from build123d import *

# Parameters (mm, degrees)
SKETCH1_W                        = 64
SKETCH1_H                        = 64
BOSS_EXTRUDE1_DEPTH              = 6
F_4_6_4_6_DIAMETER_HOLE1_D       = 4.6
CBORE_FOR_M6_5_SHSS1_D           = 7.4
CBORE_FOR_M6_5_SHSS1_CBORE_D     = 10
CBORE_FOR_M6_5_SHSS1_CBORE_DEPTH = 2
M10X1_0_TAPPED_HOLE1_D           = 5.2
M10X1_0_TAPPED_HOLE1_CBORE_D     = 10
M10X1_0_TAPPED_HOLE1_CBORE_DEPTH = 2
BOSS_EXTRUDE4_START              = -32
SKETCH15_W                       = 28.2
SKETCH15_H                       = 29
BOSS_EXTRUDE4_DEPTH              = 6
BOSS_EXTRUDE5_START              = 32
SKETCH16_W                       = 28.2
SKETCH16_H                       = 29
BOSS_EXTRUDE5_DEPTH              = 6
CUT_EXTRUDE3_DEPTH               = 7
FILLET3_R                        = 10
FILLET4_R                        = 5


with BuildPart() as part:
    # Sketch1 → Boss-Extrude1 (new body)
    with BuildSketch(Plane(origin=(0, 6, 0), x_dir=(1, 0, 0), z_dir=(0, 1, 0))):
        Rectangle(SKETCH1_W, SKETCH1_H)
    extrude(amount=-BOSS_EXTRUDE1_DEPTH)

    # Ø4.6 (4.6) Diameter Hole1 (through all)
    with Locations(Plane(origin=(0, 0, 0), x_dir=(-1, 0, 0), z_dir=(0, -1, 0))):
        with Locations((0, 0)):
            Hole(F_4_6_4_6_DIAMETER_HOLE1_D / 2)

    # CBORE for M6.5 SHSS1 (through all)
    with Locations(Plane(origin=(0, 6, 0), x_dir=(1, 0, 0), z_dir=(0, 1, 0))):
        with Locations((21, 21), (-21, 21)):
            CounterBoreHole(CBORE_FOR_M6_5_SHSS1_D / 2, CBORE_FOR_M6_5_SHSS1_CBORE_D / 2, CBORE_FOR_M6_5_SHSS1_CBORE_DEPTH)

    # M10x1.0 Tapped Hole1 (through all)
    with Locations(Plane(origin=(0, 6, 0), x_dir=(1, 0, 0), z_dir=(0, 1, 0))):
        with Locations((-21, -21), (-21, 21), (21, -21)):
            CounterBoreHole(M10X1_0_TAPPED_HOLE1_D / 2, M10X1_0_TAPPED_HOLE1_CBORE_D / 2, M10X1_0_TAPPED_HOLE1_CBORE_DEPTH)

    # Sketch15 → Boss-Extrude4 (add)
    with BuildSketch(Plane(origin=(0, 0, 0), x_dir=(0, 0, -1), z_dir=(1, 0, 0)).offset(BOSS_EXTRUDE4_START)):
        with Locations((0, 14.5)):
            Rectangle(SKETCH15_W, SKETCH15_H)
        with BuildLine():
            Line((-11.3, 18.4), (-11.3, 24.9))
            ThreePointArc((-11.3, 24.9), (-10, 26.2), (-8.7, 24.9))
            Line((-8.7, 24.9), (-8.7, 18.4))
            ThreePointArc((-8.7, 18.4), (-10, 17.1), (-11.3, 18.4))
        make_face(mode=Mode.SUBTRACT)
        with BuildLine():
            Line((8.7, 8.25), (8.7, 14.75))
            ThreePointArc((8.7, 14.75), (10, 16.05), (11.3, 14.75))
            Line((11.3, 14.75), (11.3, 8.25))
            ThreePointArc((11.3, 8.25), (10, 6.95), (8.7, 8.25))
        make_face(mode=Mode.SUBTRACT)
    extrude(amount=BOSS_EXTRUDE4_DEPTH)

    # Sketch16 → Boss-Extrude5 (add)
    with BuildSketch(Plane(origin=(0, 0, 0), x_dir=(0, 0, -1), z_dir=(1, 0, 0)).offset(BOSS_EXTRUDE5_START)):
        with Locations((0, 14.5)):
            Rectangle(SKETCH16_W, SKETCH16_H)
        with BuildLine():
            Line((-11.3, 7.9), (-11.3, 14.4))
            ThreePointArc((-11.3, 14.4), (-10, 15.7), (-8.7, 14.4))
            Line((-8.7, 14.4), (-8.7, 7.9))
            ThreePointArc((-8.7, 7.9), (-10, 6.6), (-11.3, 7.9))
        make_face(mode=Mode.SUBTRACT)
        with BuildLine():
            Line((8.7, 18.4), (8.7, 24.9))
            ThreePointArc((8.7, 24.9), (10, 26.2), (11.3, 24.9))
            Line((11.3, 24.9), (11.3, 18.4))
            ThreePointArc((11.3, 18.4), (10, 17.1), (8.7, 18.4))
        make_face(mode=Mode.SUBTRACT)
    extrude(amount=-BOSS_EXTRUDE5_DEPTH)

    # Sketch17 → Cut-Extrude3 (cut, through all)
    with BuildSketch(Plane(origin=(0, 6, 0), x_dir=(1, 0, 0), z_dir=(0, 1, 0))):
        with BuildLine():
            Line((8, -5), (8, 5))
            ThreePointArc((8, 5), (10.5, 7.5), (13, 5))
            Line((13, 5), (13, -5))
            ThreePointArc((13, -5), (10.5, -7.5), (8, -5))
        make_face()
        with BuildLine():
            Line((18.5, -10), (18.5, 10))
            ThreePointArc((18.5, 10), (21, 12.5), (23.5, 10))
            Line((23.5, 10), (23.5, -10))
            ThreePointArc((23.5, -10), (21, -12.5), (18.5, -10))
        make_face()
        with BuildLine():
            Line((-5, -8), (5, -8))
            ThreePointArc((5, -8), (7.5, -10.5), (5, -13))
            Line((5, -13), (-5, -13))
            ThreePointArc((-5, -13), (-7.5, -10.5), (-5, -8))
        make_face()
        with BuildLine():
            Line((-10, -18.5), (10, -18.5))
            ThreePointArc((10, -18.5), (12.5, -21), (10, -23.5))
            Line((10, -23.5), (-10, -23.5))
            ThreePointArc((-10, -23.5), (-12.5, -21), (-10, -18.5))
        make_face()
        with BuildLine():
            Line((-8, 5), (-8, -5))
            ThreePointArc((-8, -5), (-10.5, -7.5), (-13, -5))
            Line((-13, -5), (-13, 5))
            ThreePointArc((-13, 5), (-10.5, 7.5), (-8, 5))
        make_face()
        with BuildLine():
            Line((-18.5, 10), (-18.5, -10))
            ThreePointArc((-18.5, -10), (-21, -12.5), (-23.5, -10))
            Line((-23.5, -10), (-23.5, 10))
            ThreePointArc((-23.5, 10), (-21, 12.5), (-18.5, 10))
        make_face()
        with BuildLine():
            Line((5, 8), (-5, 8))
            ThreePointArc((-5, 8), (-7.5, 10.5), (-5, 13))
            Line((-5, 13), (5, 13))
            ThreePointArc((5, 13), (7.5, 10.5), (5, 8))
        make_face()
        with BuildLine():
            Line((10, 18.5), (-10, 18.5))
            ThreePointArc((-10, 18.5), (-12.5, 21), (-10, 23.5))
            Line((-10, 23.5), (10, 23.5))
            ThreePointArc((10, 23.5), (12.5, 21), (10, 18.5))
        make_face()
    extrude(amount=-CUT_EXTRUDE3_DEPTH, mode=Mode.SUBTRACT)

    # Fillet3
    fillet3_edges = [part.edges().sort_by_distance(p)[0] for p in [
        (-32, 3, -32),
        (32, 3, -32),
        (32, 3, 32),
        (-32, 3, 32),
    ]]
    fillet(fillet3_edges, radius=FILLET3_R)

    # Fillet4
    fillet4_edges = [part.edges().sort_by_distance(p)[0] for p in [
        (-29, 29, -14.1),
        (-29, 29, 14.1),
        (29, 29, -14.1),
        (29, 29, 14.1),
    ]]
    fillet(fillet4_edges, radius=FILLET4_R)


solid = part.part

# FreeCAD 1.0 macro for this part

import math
import FreeCAD as App
import Part
import Sketcher
Q = App.Units.Quantity


def edges_at(feature, points):
    """Names of the edges that pass closest to the given points."""
    edges = feature.Shape.Edges
    near = lambda p: min(range(len(edges)), key=lambda i: edges[i].distToShape(Part.Vertex(*p))[0])
    return sorted({f"Edge{near(p) + 1}" for p in points})


def add_polygon(sketch, points):
    """Adds a closed chain of lines whose ends are joined by coincident constraints."""
    first, n = sketch.GeometryCount, len(points)
    for a, b in zip(points, points[1:] + points[:1]):
        sketch.addGeometry(Part.LineSegment(App.Vector(*a, 0), App.Vector(*b, 0)), False)
    for i in range(n):
        sketch.addConstraint(Sketcher.Constraint("Coincident", first + i, 2, first + (i + 1) % n, 1))

doc = App.newDocument("Part")
params = doc.addObject("Spreadsheet::Sheet", "Params")
for row, (alias, value) in enumerate([
    ("sketch1_width", "64 mm"),
    ("pad1_length", "6 mm"),
    ("sketch2_diameter", "4.6 mm"),
    ("hole_diameter", "4.6 mm"),
    ("sketch3_diameter", "7.4 mm"),
    ("hole2_diameter", "7.4 mm"),
    ("hole2_cbore_diameter", "10 mm"),
    ("hole2_cbore_depth", "2 mm"),
    ("sketch4_diameter", "5.2 mm"),
    ("hole3_diameter", "5.2 mm"),
    ("hole3_cbore_diameter", "10 mm"),
    ("hole3_cbore_depth", "2 mm"),
    ("sketch5_radius", "1.3 mm"),
    ("sketch5_width", "29 mm"),
    ("sketch5_width2", "6.5 mm"),
    ("sketch5_height", "28.2 mm"),
    ("pad2_length", "6 mm"),
    ("sketch6_radius", "1.3 mm"),
    ("sketch6_width", "29 mm"),
    ("sketch6_width2", "6.5 mm"),
    ("sketch6_height", "28.2 mm"),
    ("pad3_length", "6 mm"),
    ("sketch7_radius", "2.5 mm"),
    ("sketch7_width", "10 mm"),
    ("sketch7_width2", "20 mm"),
    ("fillet_radius", "10 mm"),
    ("fillet2_radius", "5 mm"),
], start=1):
    params.set(f"A{row}", alias)
    params.set(f"B{row}", "=" + value)
    params.setAlias(f"B{row}", alias)

body = doc.addObject("PartDesign::Body", "Body")

# Sketch on XZ plane
sketch1 = doc.addObject("Sketcher::SketchObject", "Sketch")
body.addObject(sketch1)
sketch1.AttachmentSupport = (doc.XZ_Plane, [""])
sketch1.MapMode = "FlatFace"
sketch1.AttachmentOffset = App.Placement(App.Vector(0, 0, -6), App.Rotation())
add_polygon(sketch1, [(-32, -32), (-32, 32), (32, 32), (32, -32)])  # lines 0-3
sketch1.addConstraint(Sketcher.Constraint("Vertical", 0))
sketch1.addConstraint(Sketcher.Constraint("Horizontal", 1))
sketch1.addConstraint(Sketcher.Constraint("Vertical", 2))
sketch1.addConstraint(Sketcher.Constraint("Horizontal", 3))
sketch1.addConstraint(Sketcher.Constraint("Symmetric", 0, 2, 2, 2, -1, 1))
sketch1.addConstraint(Sketcher.Constraint("Equal", 3, 0))
sketch1.addConstraint(Sketcher.Constraint("DistanceX", 1, 1, 1, 2, Q("64 mm")))
sketch1.setExpression("Constraints[10]", "Params.sketch1_width")
pad1 = doc.addObject("PartDesign::Pad", "Pad")
body.addObject(pad1)
pad1.Profile = sketch1
pad1.setExpression("Length", "Params.pad1_length")

# Sketch on XZ plane
sketch2 = doc.addObject("Sketcher::SketchObject", "Sketch001")
body.addObject(sketch2)
sketch2.AttachmentSupport = (doc.XZ_Plane, [""])
sketch2.MapMode = "FlatFace"
sketch2.addGeometry(Part.Circle(App.Vector(0, 0, 0), App.Vector(0, 0, 1), 2.3), False)
sketch2.addConstraint(Sketcher.Constraint("Coincident", 0, 3, -1, 1))
sketch2.addConstraint(Sketcher.Constraint("Diameter", 0, Q("4.6 mm")))
sketch2.setExpression("Constraints[1]", "Params.sketch2_diameter")
doc.recompute()
hole = doc.addObject("PartDesign::Hole", "Hole")
body.addObject(hole)
hole.Profile = sketch2
hole.ThreadType = "None"
hole.setExpression("Diameter", "Params.hole_diameter")
hole.DepthType = "ThroughAll"

# Sketch on XZ plane
sketch3 = doc.addObject("Sketcher::SketchObject", "Sketch002")
body.addObject(sketch3)
sketch3.AttachmentSupport = (doc.XZ_Plane, [""])
sketch3.MapMode = "FlatFace"
sketch3.AttachmentOffset = App.Placement(App.Vector(0, 0, -6), App.Rotation())
sketch3.addGeometry(Part.Circle(App.Vector(21, -21, 0), App.Vector(0, 0, 1), 3.7), False)
sketch3.addGeometry(Part.Circle(App.Vector(-21, -21, 0), App.Vector(0, 0, 1), 3.7), False)
sketch3.addConstraint(Sketcher.Constraint("Equal", 0, 1))
sketch3.addConstraint(Sketcher.Constraint("Symmetric", 0, 3, 1, 3, -2))
sketch3.addConstraint(Sketcher.Constraint("Diameter", 0, Q("7.4 mm")))
sketch3.addConstraint(Sketcher.Constraint("DistanceX", -1, 1, 0, 3, Q("21 mm")))
sketch3.addConstraint(Sketcher.Constraint("DistanceY", 0, 3, -1, 1, Q("21 mm")))
sketch3.setExpression("Constraints[2]", "Params.sketch3_diameter")
doc.recompute()
hole2 = doc.addObject("PartDesign::Hole", "Hole001")
body.addObject(hole2)
hole2.Profile = sketch3
hole2.ThreadType = "None"
hole2.setExpression("Diameter", "Params.hole2_diameter")
hole2.DepthType = "ThroughAll"
hole2.HoleCutType = "Counterbore"
hole2.setExpression("HoleCutDiameter", "Params.hole2_cbore_diameter")
hole2.setExpression("HoleCutDepth", "Params.hole2_cbore_depth")
hole2.Reversed = True

# Sketch on XZ plane
sketch4 = doc.addObject("Sketcher::SketchObject", "Sketch003")
body.addObject(sketch4)
sketch4.AttachmentSupport = (doc.XZ_Plane, [""])
sketch4.MapMode = "FlatFace"
sketch4.AttachmentOffset = App.Placement(App.Vector(0, 0, -6), App.Rotation())
sketch4.addGeometry(Part.Circle(App.Vector(-21, 21, 0), App.Vector(0, 0, 1), 2.6), False)
sketch4.addGeometry(Part.Circle(App.Vector(-21, -21, 0), App.Vector(0, 0, 1), 2.6), False)
sketch4.addGeometry(Part.Circle(App.Vector(21, 21, 0), App.Vector(0, 0, 1), 2.6), False)
sketch4.addConstraint(Sketcher.Constraint("Equal", 0, 1))
sketch4.addConstraint(Sketcher.Constraint("Equal", 1, 2))
sketch4.addConstraint(Sketcher.Constraint("Symmetric", 1, 3, 2, 3, -1, 1))
sketch4.addConstraint(Sketcher.Constraint("Symmetric", 0, 3, 2, 3, -2))
sketch4.addConstraint(Sketcher.Constraint("Diameter", 0, Q("5.2 mm")))
sketch4.addConstraint(Sketcher.Constraint("DistanceX", 0, 3, -1, 1, Q("21 mm")))
sketch4.addConstraint(Sketcher.Constraint("DistanceY", -1, 1, 0, 3, Q("21 mm")))
sketch4.setExpression("Constraints[4]", "Params.sketch4_diameter")
doc.recompute()
hole3 = doc.addObject("PartDesign::Hole", "Hole002")
body.addObject(hole3)
hole3.Profile = sketch4
hole3.ThreadType = "None"
hole3.setExpression("Diameter", "Params.hole3_diameter")
hole3.DepthType = "ThroughAll"
hole3.HoleCutType = "Counterbore"
hole3.setExpression("HoleCutDiameter", "Params.hole3_cbore_diameter")
hole3.setExpression("HoleCutDepth", "Params.hole3_cbore_depth")
hole3.Reversed = True

# Sketch on YZ plane
sketch5 = doc.addObject("Sketcher::SketchObject", "Sketch004")
body.addObject(sketch5)
sketch5.AttachmentSupport = (doc.YZ_Plane, [""])
sketch5.MapMode = "FlatFace"
sketch5.AttachmentOffset = App.Placement(App.Vector(0, 0, -32), App.Rotation())
add_polygon(sketch5, [(29, 14.1), (0, 14.1), (0, -14.1), (29, -14.1)])  # lines 0-3
sketch5.addGeometry(Part.ArcOfCircle(Part.Circle(App.Vector(8.2, -10, 0), App.Vector(0, 0, 1), 1.3), math.radians(90), math.radians(270)), False)  # 4
sketch5.addGeometry(Part.LineSegment(App.Vector(8.2, -8.7, 0), App.Vector(14.8, -8.7, 0)), False)  # 5
sketch5.addGeometry(Part.ArcOfCircle(Part.Circle(App.Vector(14.8, -10, 0), App.Vector(0, 0, 1), 1.3), math.radians(-90), math.radians(90)), False)  # 6
sketch5.addGeometry(Part.LineSegment(App.Vector(14.8, -11.3, 0), App.Vector(8.2, -11.3, 0)), False)  # 7
sketch5.addGeometry(Part.ArcOfCircle(Part.Circle(App.Vector(18.4, 10, 0), App.Vector(0, 0, 1), 1.3), math.radians(90), math.radians(270)), False)  # 8
sketch5.addGeometry(Part.LineSegment(App.Vector(18.4, 11.3, 0), App.Vector(24.9, 11.3, 0)), False)  # 9
sketch5.addGeometry(Part.ArcOfCircle(Part.Circle(App.Vector(24.9, 10, 0), App.Vector(0, 0, 1), 1.3), math.radians(-90), math.radians(90)), False)  # 10
sketch5.addGeometry(Part.LineSegment(App.Vector(24.9, 8.7, 0), App.Vector(18.4, 8.7, 0)), False)  # 11
sketch5.addConstraint(Sketcher.Constraint("Tangent", 4, 1, 5, 1))
sketch5.addConstraint(Sketcher.Constraint("Tangent", 5, 2, 6, 2))
sketch5.addConstraint(Sketcher.Constraint("Tangent", 6, 1, 7, 1))
sketch5.addConstraint(Sketcher.Constraint("Tangent", 7, 2, 4, 2))
sketch5.addConstraint(Sketcher.Constraint("Tangent", 8, 1, 9, 1))
sketch5.addConstraint(Sketcher.Constraint("Tangent", 9, 2, 10, 2))
sketch5.addConstraint(Sketcher.Constraint("Tangent", 10, 1, 11, 1))
sketch5.addConstraint(Sketcher.Constraint("Tangent", 11, 2, 8, 2))
sketch5.addConstraint(Sketcher.Constraint("Horizontal", 0))
sketch5.addConstraint(Sketcher.Constraint("Vertical", 1))
sketch5.addConstraint(Sketcher.Constraint("Horizontal", 2))
sketch5.addConstraint(Sketcher.Constraint("Vertical", 3))
sketch5.addConstraint(Sketcher.Constraint("Horizontal", 5))
sketch5.addConstraint(Sketcher.Constraint("Horizontal", 7))
sketch5.addConstraint(Sketcher.Constraint("Horizontal", 9))
sketch5.addConstraint(Sketcher.Constraint("Horizontal", 11))
sketch5.addConstraint(Sketcher.Constraint("Equal", 6, 8))
sketch5.addConstraint(Sketcher.Constraint("Symmetric", 0, 2, 1, 2, -1, 1))
sketch5.addConstraint(Sketcher.Constraint("Equal", 7, 9))
sketch5.addConstraint(Sketcher.Constraint("Radius", 4, Q("1.3 mm")))
sketch5.addConstraint(Sketcher.Constraint("DistanceX", 0, 2, 0, 1, Q("29 mm")))
sketch5.addConstraint(Sketcher.Constraint("DistanceX", 5, 1, 5, 2, Q("6.5 mm")))
sketch5.addConstraint(Sketcher.Constraint("DistanceY", 1, 2, 1, 1, Q("28.2 mm")))
sketch5.addConstraint(Sketcher.Constraint("DistanceY", 4, 3, -1, 1, Q("10 mm")))
sketch5.addConstraint(Sketcher.Constraint("DistanceY", -1, 1, 8, 3, Q("10 mm")))
sketch5.addConstraint(Sketcher.Constraint("DistanceX", -1, 1, 8, 3, Q("18.4 mm")))
sketch5.addConstraint(Sketcher.Constraint("DistanceX", -1, 1, 4, 3, Q("8.25 mm")))
sketch5.setExpression("Constraints[23]", "Params.sketch5_radius")
sketch5.setExpression("Constraints[24]", "Params.sketch5_width")
sketch5.setExpression("Constraints[25]", "Params.sketch5_width2")
sketch5.setExpression("Constraints[26]", "Params.sketch5_height")
pad2 = doc.addObject("PartDesign::Pad", "Pad001")
body.addObject(pad2)
pad2.Profile = sketch5
pad2.setExpression("Length", "Params.pad2_length")

# Sketch on YZ plane
sketch6 = doc.addObject("Sketcher::SketchObject", "Sketch005")
body.addObject(sketch6)
sketch6.AttachmentSupport = (doc.YZ_Plane, [""])
sketch6.MapMode = "FlatFace"
sketch6.AttachmentOffset = App.Placement(App.Vector(0, 0, 32), App.Rotation())
add_polygon(sketch6, [(29, 14.1), (0, 14.1), (0, -14.1), (29, -14.1)])  # lines 0-3
sketch6.addGeometry(Part.ArcOfCircle(Part.Circle(App.Vector(7.9, 10, 0), App.Vector(0, 0, 1), 1.3), math.radians(90), math.radians(270)), False)  # 4
sketch6.addGeometry(Part.LineSegment(App.Vector(7.9, 11.3, 0), App.Vector(14.4, 11.3, 0)), False)  # 5
sketch6.addGeometry(Part.ArcOfCircle(Part.Circle(App.Vector(14.4, 10, 0), App.Vector(0, 0, 1), 1.3), math.radians(-90), math.radians(90)), False)  # 6
sketch6.addGeometry(Part.LineSegment(App.Vector(14.4, 8.7, 0), App.Vector(7.9, 8.7, 0)), False)  # 7
sketch6.addGeometry(Part.ArcOfCircle(Part.Circle(App.Vector(18.4, -10, 0), App.Vector(0, 0, 1), 1.3), math.radians(90), math.radians(270)), False)  # 8
sketch6.addGeometry(Part.LineSegment(App.Vector(18.4, -8.7, 0), App.Vector(24.9, -8.7, 0)), False)  # 9
sketch6.addGeometry(Part.ArcOfCircle(Part.Circle(App.Vector(24.9, -10, 0), App.Vector(0, 0, 1), 1.3), math.radians(-90), math.radians(90)), False)  # 10
sketch6.addGeometry(Part.LineSegment(App.Vector(24.9, -11.3, 0), App.Vector(18.4, -11.3, 0)), False)  # 11
sketch6.addConstraint(Sketcher.Constraint("Tangent", 4, 1, 5, 1))
sketch6.addConstraint(Sketcher.Constraint("Tangent", 5, 2, 6, 2))
sketch6.addConstraint(Sketcher.Constraint("Tangent", 6, 1, 7, 1))
sketch6.addConstraint(Sketcher.Constraint("Tangent", 7, 2, 4, 2))
sketch6.addConstraint(Sketcher.Constraint("Tangent", 8, 1, 9, 1))
sketch6.addConstraint(Sketcher.Constraint("Tangent", 9, 2, 10, 2))
sketch6.addConstraint(Sketcher.Constraint("Tangent", 10, 1, 11, 1))
sketch6.addConstraint(Sketcher.Constraint("Tangent", 11, 2, 8, 2))
sketch6.addConstraint(Sketcher.Constraint("Horizontal", 0))
sketch6.addConstraint(Sketcher.Constraint("Vertical", 1))
sketch6.addConstraint(Sketcher.Constraint("Horizontal", 2))
sketch6.addConstraint(Sketcher.Constraint("Vertical", 3))
sketch6.addConstraint(Sketcher.Constraint("Horizontal", 5))
sketch6.addConstraint(Sketcher.Constraint("Horizontal", 7))
sketch6.addConstraint(Sketcher.Constraint("Horizontal", 9))
sketch6.addConstraint(Sketcher.Constraint("Horizontal", 11))
sketch6.addConstraint(Sketcher.Constraint("Equal", 6, 8))
sketch6.addConstraint(Sketcher.Constraint("Symmetric", 0, 2, 1, 2, -1, 1))
sketch6.addConstraint(Sketcher.Constraint("Equal", 7, 9))
sketch6.addConstraint(Sketcher.Constraint("Radius", 4, Q("1.3 mm")))
sketch6.addConstraint(Sketcher.Constraint("DistanceX", 0, 2, 0, 1, Q("29 mm")))
sketch6.addConstraint(Sketcher.Constraint("DistanceX", 5, 1, 5, 2, Q("6.5 mm")))
sketch6.addConstraint(Sketcher.Constraint("DistanceY", 1, 2, 1, 1, Q("28.2 mm")))
sketch6.addConstraint(Sketcher.Constraint("DistanceY", -1, 1, 4, 3, Q("10 mm")))
sketch6.addConstraint(Sketcher.Constraint("DistanceY", 8, 3, -1, 1, Q("10 mm")))
sketch6.addConstraint(Sketcher.Constraint("DistanceX", 6, 3, 8, 3, Q("4 mm")))
sketch6.addConstraint(Sketcher.Constraint("DistanceX", -1, 1, 4, 3, Q("7.9 mm")))
sketch6.setExpression("Constraints[23]", "Params.sketch6_radius")
sketch6.setExpression("Constraints[24]", "Params.sketch6_width")
sketch6.setExpression("Constraints[25]", "Params.sketch6_width2")
sketch6.setExpression("Constraints[26]", "Params.sketch6_height")
pad3 = doc.addObject("PartDesign::Pad", "Pad002")
body.addObject(pad3)
pad3.Profile = sketch6
pad3.setExpression("Length", "Params.pad3_length")
pad3.Reversed = True

# Sketch on XZ plane
sketch7 = doc.addObject("Sketcher::SketchObject", "Sketch006")
body.addObject(sketch7)
sketch7.AttachmentSupport = (doc.XZ_Plane, [""])
sketch7.MapMode = "FlatFace"
sketch7.AttachmentOffset = App.Placement(App.Vector(0, 0, -6), App.Rotation())
sketch7.addGeometry(Part.LineSegment(App.Vector(8, -5, 0), App.Vector(8, 5, 0)), False)
sketch7.addGeometry(Part.ArcOfCircle(Part.Circle(App.Vector(10.5, 5, 0), App.Vector(0, 0, 1), 2.5), math.radians(0), math.radians(180)), False)
sketch7.addGeometry(Part.LineSegment(App.Vector(13, 5, 0), App.Vector(13, -5, 0)), False)
sketch7.addGeometry(Part.ArcOfCircle(Part.Circle(App.Vector(10.5, -5, 0), App.Vector(0, 0, 1), 2.5), math.radians(180), math.radians(360)), False)
sketch7.addGeometry(Part.LineSegment(App.Vector(18.5, -10, 0), App.Vector(18.5, 10, 0)), False)
sketch7.addGeometry(Part.ArcOfCircle(Part.Circle(App.Vector(21, 10, 0), App.Vector(0, 0, 1), 2.5), math.radians(0), math.radians(180)), False)
sketch7.addGeometry(Part.LineSegment(App.Vector(23.5, 10, 0), App.Vector(23.5, -10, 0)), False)
sketch7.addGeometry(Part.ArcOfCircle(Part.Circle(App.Vector(21, -10, 0), App.Vector(0, 0, 1), 2.5), math.radians(180), math.radians(360)), False)
sketch7.addGeometry(Part.LineSegment(App.Vector(5, 8, 0), App.Vector(-5, 8, 0)), False)
sketch7.addGeometry(Part.ArcOfCircle(Part.Circle(App.Vector(-5, 10.5, 0), App.Vector(0, 0, 1), 2.5), math.radians(90), math.radians(270)), False)
sketch7.addGeometry(Part.LineSegment(App.Vector(-5, 13, 0), App.Vector(5, 13, 0)), False)
sketch7.addGeometry(Part.ArcOfCircle(Part.Circle(App.Vector(5, 10.5, 0), App.Vector(0, 0, 1), 2.5), math.radians(-90), math.radians(90)), False)
sketch7.addGeometry(Part.LineSegment(App.Vector(10, 18.5, 0), App.Vector(-10, 18.5, 0)), False)
sketch7.addGeometry(Part.ArcOfCircle(Part.Circle(App.Vector(-10, 21, 0), App.Vector(0, 0, 1), 2.5), math.radians(90), math.radians(270)), False)
sketch7.addGeometry(Part.LineSegment(App.Vector(-10, 23.5, 0), App.Vector(10, 23.5, 0)), False)
sketch7.addGeometry(Part.ArcOfCircle(Part.Circle(App.Vector(10, 21, 0), App.Vector(0, 0, 1), 2.5), math.radians(-90), math.radians(90)), False)
sketch7.addGeometry(Part.LineSegment(App.Vector(-8, 5, 0), App.Vector(-8, -5, 0)), False)
sketch7.addGeometry(Part.ArcOfCircle(Part.Circle(App.Vector(-10.5, -5, 0), App.Vector(0, 0, 1), 2.5), math.radians(180), math.radians(360)), False)
sketch7.addGeometry(Part.LineSegment(App.Vector(-13, -5, 0), App.Vector(-13, 5, 0)), False)
sketch7.addGeometry(Part.ArcOfCircle(Part.Circle(App.Vector(-10.5, 5, 0), App.Vector(0, 0, 1), 2.5), math.radians(0), math.radians(180)), False)
sketch7.addGeometry(Part.LineSegment(App.Vector(-18.5, 10, 0), App.Vector(-18.5, -10, 0)), False)
sketch7.addGeometry(Part.ArcOfCircle(Part.Circle(App.Vector(-21, -10, 0), App.Vector(0, 0, 1), 2.5), math.radians(180), math.radians(360)), False)
sketch7.addGeometry(Part.LineSegment(App.Vector(-23.5, -10, 0), App.Vector(-23.5, 10, 0)), False)
sketch7.addGeometry(Part.ArcOfCircle(Part.Circle(App.Vector(-21, 10, 0), App.Vector(0, 0, 1), 2.5), math.radians(0), math.radians(180)), False)
sketch7.addGeometry(Part.LineSegment(App.Vector(-5, -8, 0), App.Vector(5, -8, 0)), False)
sketch7.addGeometry(Part.ArcOfCircle(Part.Circle(App.Vector(5, -10.5, 0), App.Vector(0, 0, 1), 2.5), math.radians(-90), math.radians(90)), False)
sketch7.addGeometry(Part.LineSegment(App.Vector(5, -13, 0), App.Vector(-5, -13, 0)), False)
sketch7.addGeometry(Part.ArcOfCircle(Part.Circle(App.Vector(-5, -10.5, 0), App.Vector(0, 0, 1), 2.5), math.radians(90), math.radians(270)), False)
sketch7.addGeometry(Part.LineSegment(App.Vector(-10, -18.5, 0), App.Vector(10, -18.5, 0)), False)
sketch7.addGeometry(Part.ArcOfCircle(Part.Circle(App.Vector(10, -21, 0), App.Vector(0, 0, 1), 2.5), math.radians(-90), math.radians(90)), False)
sketch7.addGeometry(Part.LineSegment(App.Vector(10, -23.5, 0), App.Vector(-10, -23.5, 0)), False)
sketch7.addGeometry(Part.ArcOfCircle(Part.Circle(App.Vector(-10, -21, 0), App.Vector(0, 0, 1), 2.5), math.radians(90), math.radians(270)), False)
sketch7.addConstraint(Sketcher.Constraint("Tangent", 0, 2, 1, 2))
sketch7.addConstraint(Sketcher.Constraint("Tangent", 1, 1, 2, 1))
sketch7.addConstraint(Sketcher.Constraint("Tangent", 2, 2, 3, 2))
sketch7.addConstraint(Sketcher.Constraint("Tangent", 3, 1, 0, 1))
sketch7.addConstraint(Sketcher.Constraint("Tangent", 4, 2, 5, 2))
sketch7.addConstraint(Sketcher.Constraint("Tangent", 5, 1, 6, 1))
sketch7.addConstraint(Sketcher.Constraint("Tangent", 6, 2, 7, 2))
sketch7.addConstraint(Sketcher.Constraint("Tangent", 7, 1, 4, 1))
sketch7.addConstraint(Sketcher.Constraint("Tangent", 8, 2, 9, 2))
sketch7.addConstraint(Sketcher.Constraint("Tangent", 9, 1, 10, 1))
sketch7.addConstraint(Sketcher.Constraint("Tangent", 10, 2, 11, 2))
sketch7.addConstraint(Sketcher.Constraint("Tangent", 11, 1, 8, 1))
sketch7.addConstraint(Sketcher.Constraint("Tangent", 12, 2, 13, 2))
sketch7.addConstraint(Sketcher.Constraint("Tangent", 13, 1, 14, 1))
sketch7.addConstraint(Sketcher.Constraint("Tangent", 14, 2, 15, 2))
sketch7.addConstraint(Sketcher.Constraint("Tangent", 15, 1, 12, 1))
sketch7.addConstraint(Sketcher.Constraint("Tangent", 16, 2, 17, 2))
sketch7.addConstraint(Sketcher.Constraint("Tangent", 17, 1, 18, 1))
sketch7.addConstraint(Sketcher.Constraint("Tangent", 18, 2, 19, 2))
sketch7.addConstraint(Sketcher.Constraint("Tangent", 19, 1, 16, 1))
sketch7.addConstraint(Sketcher.Constraint("Tangent", 20, 2, 21, 2))
sketch7.addConstraint(Sketcher.Constraint("Tangent", 21, 1, 22, 1))
sketch7.addConstraint(Sketcher.Constraint("Tangent", 22, 2, 23, 2))
sketch7.addConstraint(Sketcher.Constraint("Tangent", 23, 1, 20, 1))
sketch7.addConstraint(Sketcher.Constraint("Tangent", 24, 2, 25, 2))
sketch7.addConstraint(Sketcher.Constraint("Tangent", 25, 1, 26, 1))
sketch7.addConstraint(Sketcher.Constraint("Tangent", 26, 2, 27, 2))
sketch7.addConstraint(Sketcher.Constraint("Tangent", 27, 1, 24, 1))
sketch7.addConstraint(Sketcher.Constraint("Tangent", 28, 2, 29, 2))
sketch7.addConstraint(Sketcher.Constraint("Tangent", 29, 1, 30, 1))
sketch7.addConstraint(Sketcher.Constraint("Tangent", 30, 2, 31, 2))
sketch7.addConstraint(Sketcher.Constraint("Tangent", 31, 1, 28, 1))
sketch7.addConstraint(Sketcher.Constraint("Vertical", 0))
sketch7.addConstraint(Sketcher.Constraint("Vertical", 2))
sketch7.addConstraint(Sketcher.Constraint("Vertical", 4))
sketch7.addConstraint(Sketcher.Constraint("Vertical", 6))
sketch7.addConstraint(Sketcher.Constraint("Horizontal", 8))
sketch7.addConstraint(Sketcher.Constraint("Horizontal", 10))
sketch7.addConstraint(Sketcher.Constraint("Horizontal", 12))
sketch7.addConstraint(Sketcher.Constraint("Horizontal", 14))
sketch7.addConstraint(Sketcher.Constraint("Vertical", 16))
sketch7.addConstraint(Sketcher.Constraint("Vertical", 18))
sketch7.addConstraint(Sketcher.Constraint("Vertical", 20))
sketch7.addConstraint(Sketcher.Constraint("Vertical", 22))
sketch7.addConstraint(Sketcher.Constraint("Horizontal", 24))
sketch7.addConstraint(Sketcher.Constraint("Horizontal", 26))
sketch7.addConstraint(Sketcher.Constraint("Horizontal", 28))
sketch7.addConstraint(Sketcher.Constraint("Horizontal", 30))
sketch7.addConstraint(Sketcher.Constraint("Equal", 3, 5))
sketch7.addConstraint(Sketcher.Constraint("Equal", 7, 9))
sketch7.addConstraint(Sketcher.Constraint("Equal", 11, 13))
sketch7.addConstraint(Sketcher.Constraint("Equal", 15, 17))
sketch7.addConstraint(Sketcher.Constraint("Equal", 19, 21))
sketch7.addConstraint(Sketcher.Constraint("Equal", 23, 25))
sketch7.addConstraint(Sketcher.Constraint("Equal", 27, 29))
sketch7.addConstraint(Sketcher.Constraint("Symmetric", 1, 3, 17, 3, -1, 1))
sketch7.addConstraint(Sketcher.Constraint("Symmetric", 5, 3, 21, 3, -1, 1))
sketch7.addConstraint(Sketcher.Constraint("Symmetric", 9, 3, 25, 3, -1, 1))
sketch7.addConstraint(Sketcher.Constraint("Symmetric", 13, 3, 29, 3, -1, 1))
sketch7.addConstraint(Sketcher.Constraint("Horizontal", 3, 3, 17, 3))
sketch7.addConstraint(Sketcher.Constraint("Horizontal", 1, 3, 19, 3))
sketch7.addConstraint(Sketcher.Constraint("Horizontal", 7, 3, 21, 3))
sketch7.addConstraint(Sketcher.Constraint("Horizontal", 5, 3, 23, 3))
sketch7.addConstraint(Sketcher.Constraint("Vertical", 11, 3, 25, 3))
sketch7.addConstraint(Sketcher.Constraint("Vertical", 9, 3, 27, 3))
sketch7.addConstraint(Sketcher.Constraint("Vertical", 15, 3, 29, 3))
sketch7.addConstraint(Sketcher.Constraint("Vertical", 13, 3, 31, 3))
sketch7.addConstraint(Sketcher.Constraint("Equal", 26, 0))
sketch7.addConstraint(Sketcher.Constraint("Equal", 30, 4))
sketch7.addConstraint(Sketcher.Constraint("Radius", 1, Q("2.5 mm")))
sketch7.addConstraint(Sketcher.Constraint("DistanceX", 8, 2, 8, 1, Q("10 mm")))
sketch7.addConstraint(Sketcher.Constraint("DistanceX", 12, 2, 12, 1, Q("20 mm")))
sketch7.addConstraint(Sketcher.Constraint("DistanceX", -1, 1, 5, 3, Q("21 mm")))
sketch7.addConstraint(Sketcher.Constraint("DistanceY", -1, 1, 13, 3, Q("21 mm")))
sketch7.addConstraint(Sketcher.Constraint("DistanceX", -1, 1, 0, 2, Q("8 mm")))
sketch7.addConstraint(Sketcher.Constraint("DistanceY", -1, 1, 8, 2, Q("8 mm")))
sketch7.setExpression("Constraints[69]", "Params.sketch7_radius")
sketch7.setExpression("Constraints[70]", "Params.sketch7_width")
sketch7.setExpression("Constraints[71]", "Params.sketch7_width2")
pocket1 = doc.addObject("PartDesign::Pocket", "Pocket")
body.addObject(pocket1)
pocket1.Profile = sketch7
pocket1.Type = "ThroughAll"
pocket1.Reversed = True
doc.recompute()

fillet = doc.addObject("PartDesign::Fillet", "Fillet")
body.addObject(fillet)
fillet.Base = (pocket1, edges_at(pocket1, [
    (-32, 3, -32),
    (32, 3, -32),
    (32, 3, 32),
    (-32, 3, 32),
]))
fillet.setExpression("Radius", "Params.fillet_radius")
doc.recompute()

fillet2 = doc.addObject("PartDesign::Fillet", "Fillet001")
body.addObject(fillet2)
fillet2.Base = (fillet, edges_at(fillet, [
    (-29, 29, -14.1),
    (-29, 29, 14.1),
    (29, 29, -14.1),
    (29, 29, 14.1),
]))
fillet2.setExpression("Radius", "Params.fillet2_radius")

doc.recompute()
